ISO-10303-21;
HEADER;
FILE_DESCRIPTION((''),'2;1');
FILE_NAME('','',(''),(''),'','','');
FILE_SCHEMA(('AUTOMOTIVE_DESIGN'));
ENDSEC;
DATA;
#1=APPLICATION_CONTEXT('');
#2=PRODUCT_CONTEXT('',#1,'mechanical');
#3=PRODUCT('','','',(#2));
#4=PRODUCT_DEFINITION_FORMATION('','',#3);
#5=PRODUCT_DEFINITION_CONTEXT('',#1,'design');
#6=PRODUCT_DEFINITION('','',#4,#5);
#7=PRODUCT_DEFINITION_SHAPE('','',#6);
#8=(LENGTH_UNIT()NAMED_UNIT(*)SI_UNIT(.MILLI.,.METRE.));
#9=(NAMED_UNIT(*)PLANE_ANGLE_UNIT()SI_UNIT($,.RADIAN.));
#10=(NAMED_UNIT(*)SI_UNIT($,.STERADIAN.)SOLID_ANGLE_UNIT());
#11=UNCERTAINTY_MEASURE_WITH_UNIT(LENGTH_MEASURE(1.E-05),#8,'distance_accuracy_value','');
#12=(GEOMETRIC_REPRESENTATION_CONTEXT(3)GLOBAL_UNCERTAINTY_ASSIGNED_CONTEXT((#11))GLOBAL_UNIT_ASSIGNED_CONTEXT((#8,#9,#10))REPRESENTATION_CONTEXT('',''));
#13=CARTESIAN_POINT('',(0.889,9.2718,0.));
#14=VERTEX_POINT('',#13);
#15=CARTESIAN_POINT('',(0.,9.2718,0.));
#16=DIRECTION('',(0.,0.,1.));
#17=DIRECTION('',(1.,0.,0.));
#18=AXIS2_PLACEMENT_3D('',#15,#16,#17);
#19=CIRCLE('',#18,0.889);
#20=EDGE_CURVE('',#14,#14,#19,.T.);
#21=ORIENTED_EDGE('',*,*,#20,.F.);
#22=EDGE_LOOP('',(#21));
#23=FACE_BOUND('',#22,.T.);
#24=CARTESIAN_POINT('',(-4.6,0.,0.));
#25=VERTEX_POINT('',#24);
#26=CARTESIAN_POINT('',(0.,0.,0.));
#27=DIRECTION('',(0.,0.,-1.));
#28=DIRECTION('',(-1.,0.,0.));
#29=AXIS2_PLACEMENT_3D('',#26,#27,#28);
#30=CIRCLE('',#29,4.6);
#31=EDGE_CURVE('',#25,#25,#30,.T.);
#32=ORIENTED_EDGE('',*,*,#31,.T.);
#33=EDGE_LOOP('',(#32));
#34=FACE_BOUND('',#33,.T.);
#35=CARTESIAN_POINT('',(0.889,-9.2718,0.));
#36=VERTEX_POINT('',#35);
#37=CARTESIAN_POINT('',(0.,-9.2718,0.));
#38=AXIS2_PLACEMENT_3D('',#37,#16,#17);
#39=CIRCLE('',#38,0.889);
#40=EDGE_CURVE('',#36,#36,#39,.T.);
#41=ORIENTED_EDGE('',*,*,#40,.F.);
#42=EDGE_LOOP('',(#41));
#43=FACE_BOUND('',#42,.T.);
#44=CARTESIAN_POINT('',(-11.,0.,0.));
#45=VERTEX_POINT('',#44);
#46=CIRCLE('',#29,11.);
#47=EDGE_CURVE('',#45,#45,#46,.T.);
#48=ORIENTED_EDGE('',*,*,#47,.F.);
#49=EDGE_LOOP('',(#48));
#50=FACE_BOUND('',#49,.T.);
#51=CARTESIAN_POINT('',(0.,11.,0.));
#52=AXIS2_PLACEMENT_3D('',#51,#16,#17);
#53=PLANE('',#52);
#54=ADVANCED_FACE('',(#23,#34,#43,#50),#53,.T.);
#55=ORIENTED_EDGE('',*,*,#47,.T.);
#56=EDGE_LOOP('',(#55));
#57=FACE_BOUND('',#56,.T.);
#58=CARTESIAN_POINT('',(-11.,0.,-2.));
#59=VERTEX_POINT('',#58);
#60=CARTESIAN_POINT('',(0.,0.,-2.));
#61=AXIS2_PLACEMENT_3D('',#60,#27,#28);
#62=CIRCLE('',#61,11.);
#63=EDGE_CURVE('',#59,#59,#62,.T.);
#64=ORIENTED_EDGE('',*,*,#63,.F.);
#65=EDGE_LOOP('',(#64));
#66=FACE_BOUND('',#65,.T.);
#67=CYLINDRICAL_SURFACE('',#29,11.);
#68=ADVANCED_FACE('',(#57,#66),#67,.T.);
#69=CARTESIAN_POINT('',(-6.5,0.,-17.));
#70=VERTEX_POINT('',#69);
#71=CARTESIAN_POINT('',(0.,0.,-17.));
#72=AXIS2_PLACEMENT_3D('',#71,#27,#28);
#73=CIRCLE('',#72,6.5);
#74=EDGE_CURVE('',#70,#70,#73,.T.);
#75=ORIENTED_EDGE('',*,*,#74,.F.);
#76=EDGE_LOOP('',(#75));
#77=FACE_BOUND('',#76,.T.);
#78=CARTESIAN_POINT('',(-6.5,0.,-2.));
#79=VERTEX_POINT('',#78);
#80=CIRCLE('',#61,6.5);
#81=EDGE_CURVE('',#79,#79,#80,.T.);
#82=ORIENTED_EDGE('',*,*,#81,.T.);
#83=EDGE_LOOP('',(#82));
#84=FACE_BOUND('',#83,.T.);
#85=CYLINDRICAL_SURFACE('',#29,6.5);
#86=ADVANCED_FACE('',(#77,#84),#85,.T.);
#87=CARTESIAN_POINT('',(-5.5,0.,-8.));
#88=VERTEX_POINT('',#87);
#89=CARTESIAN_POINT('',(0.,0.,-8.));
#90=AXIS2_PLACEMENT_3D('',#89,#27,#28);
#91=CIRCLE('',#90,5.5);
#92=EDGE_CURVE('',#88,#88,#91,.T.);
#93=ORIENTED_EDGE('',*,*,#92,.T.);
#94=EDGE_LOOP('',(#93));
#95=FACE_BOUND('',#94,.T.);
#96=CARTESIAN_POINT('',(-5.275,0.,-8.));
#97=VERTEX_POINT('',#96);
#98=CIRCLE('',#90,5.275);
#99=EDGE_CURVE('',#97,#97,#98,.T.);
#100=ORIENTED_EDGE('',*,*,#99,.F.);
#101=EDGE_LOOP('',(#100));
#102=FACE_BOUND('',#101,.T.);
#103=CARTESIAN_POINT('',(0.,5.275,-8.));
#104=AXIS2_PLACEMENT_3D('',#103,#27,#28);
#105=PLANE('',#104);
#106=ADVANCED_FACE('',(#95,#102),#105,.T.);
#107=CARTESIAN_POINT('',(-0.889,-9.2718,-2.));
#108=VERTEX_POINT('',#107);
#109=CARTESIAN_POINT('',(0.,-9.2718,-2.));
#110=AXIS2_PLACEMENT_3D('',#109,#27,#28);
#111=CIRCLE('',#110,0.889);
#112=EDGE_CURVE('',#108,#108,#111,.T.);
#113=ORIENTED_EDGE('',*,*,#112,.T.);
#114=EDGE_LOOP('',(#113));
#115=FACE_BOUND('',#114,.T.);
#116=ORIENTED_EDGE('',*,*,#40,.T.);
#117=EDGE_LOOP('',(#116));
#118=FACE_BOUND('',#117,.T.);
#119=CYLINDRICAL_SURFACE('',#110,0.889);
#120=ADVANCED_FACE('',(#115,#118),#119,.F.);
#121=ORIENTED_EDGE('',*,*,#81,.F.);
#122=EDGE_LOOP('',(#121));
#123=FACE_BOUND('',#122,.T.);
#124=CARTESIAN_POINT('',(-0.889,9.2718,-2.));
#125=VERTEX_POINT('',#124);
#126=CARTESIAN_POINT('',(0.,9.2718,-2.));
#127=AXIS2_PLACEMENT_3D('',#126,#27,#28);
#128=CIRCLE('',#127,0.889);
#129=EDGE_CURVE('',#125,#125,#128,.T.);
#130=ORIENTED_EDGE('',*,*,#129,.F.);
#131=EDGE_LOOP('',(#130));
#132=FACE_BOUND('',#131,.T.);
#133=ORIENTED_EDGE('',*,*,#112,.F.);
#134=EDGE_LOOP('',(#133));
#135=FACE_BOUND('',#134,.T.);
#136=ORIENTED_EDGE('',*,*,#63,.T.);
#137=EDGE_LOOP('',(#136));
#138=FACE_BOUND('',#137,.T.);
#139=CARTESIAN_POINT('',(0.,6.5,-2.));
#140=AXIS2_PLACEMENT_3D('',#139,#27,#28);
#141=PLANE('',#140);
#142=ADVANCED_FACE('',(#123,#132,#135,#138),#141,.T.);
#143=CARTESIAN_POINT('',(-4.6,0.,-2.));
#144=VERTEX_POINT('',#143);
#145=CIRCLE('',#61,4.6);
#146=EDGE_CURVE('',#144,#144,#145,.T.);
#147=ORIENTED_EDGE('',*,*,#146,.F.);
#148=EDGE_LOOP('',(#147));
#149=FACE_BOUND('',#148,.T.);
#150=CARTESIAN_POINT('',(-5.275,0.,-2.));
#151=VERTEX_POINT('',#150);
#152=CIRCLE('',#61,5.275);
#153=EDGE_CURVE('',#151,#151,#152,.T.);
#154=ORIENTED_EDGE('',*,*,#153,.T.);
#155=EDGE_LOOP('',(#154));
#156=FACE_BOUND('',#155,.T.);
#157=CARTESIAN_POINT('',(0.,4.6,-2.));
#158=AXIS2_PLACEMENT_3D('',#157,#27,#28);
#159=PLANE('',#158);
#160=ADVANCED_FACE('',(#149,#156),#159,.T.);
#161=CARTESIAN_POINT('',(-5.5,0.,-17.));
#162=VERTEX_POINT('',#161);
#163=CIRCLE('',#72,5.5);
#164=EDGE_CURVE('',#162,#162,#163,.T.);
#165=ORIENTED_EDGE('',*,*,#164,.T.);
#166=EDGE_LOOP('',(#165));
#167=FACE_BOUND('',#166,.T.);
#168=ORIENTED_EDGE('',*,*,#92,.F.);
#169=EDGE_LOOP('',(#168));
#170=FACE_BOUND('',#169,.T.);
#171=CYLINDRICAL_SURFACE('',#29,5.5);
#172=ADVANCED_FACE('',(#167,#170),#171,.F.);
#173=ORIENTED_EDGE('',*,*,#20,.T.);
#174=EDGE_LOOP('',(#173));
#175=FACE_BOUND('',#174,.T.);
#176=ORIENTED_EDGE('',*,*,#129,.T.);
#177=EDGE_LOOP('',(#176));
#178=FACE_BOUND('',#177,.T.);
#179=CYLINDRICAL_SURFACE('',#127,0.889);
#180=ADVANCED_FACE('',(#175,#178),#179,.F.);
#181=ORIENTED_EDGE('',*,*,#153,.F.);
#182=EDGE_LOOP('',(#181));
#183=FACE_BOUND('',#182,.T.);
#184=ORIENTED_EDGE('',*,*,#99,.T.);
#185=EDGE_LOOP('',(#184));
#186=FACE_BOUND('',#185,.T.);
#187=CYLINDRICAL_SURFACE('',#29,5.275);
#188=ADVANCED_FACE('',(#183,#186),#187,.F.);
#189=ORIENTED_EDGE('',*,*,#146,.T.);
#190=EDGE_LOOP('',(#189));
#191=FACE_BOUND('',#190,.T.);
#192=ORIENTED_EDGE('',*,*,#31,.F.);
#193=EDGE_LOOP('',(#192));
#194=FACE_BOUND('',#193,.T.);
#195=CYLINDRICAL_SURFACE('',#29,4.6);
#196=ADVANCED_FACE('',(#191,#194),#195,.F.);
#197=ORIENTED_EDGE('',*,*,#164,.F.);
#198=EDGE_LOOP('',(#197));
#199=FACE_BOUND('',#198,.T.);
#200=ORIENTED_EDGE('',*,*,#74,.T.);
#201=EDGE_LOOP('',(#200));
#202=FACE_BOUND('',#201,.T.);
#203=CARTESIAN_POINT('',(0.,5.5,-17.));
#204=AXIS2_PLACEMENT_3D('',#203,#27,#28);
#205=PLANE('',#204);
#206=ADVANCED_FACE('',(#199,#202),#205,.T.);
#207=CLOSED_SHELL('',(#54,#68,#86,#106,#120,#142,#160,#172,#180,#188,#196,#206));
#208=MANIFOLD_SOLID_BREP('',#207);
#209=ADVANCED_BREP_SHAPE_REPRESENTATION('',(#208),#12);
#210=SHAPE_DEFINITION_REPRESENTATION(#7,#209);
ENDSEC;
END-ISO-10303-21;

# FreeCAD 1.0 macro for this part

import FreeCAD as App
import Part
import Sketcher
from FreeCAD import Vector
Q = App.Units.Quantity


def add_polygon(sketch, points):
    """Adds a closed chain of lines whose ends are joined by coincident constraints."""
    first, n = sketch.GeometryCount, len(points)
    for a, b in zip(points, points[1:] + points[:1]):
        sketch.addGeometry(Part.LineSegment(App.Vector(*a, 0), App.Vector(*b, 0)), False)
    for i in range(n):
        sketch.addConstraint(Sketcher.Constraint("Coincident", first + i, 2, first + (i + 1) % n, 1))

doc = App.newDocument("Part")
body = doc.addObject("PartDesign::Body", "Body")

sketch1 = body.newObject("Sketcher::SketchObject", "Sketch")
sketch1.AttachmentSupport = (doc.getObject("YZ_Plane"), [""])
sketch1.MapMode = "FlatFace"
add_polygon(sketch1, [(11, 0), (4.6, 0), (4.6, -2), (5.28, -2), (5.28, -8), (5.5, -8), (5.5, -17), (6.5, -17), (6.5, -2), (11, -2)])
sketch1.addConstraint([
    Sketcher.Constraint("Horizontal", 0),
    Sketcher.Constraint("Vertical", 1),
    Sketcher.Constraint("Horizontal", 2),
    Sketcher.Constraint("Vertical", 3),
    Sketcher.Constraint("Horizontal", 4),
    Sketcher.Constraint("Vertical", 5),
    Sketcher.Constraint("Horizontal", 6),
    Sketcher.Constraint("Vertical", 7),
    Sketcher.Constraint("Horizontal", 8),
    Sketcher.Constraint("Vertical", 9),
    Sketcher.Constraint("PointOnObject", 0, 2, -1),
    Sketcher.Constraint("Horizontal", 2, 2, 7, 2),
    Sketcher.Constraint("DistanceX", 6, 1, 6, 2, Q("1 mm")),
    Sketcher.Constraint("DistanceY", 1, 2, 1, 1, Q("2 mm")),
    Sketcher.Constraint("DistanceY", 3, 2, 3, 1, Q("6 mm")),
    Sketcher.Constraint("DistanceY", 5, 2, 5, 1, Q("9 mm")),
    Sketcher.Constraint("DistanceX", 0, 2, 0, 1, Q("6.4 mm")),
    Sketcher.Constraint("DistanceX", 8, 1, 8, 2, Q("4.5 mm")),
    Sketcher.Constraint("DistanceX", -1, 1, 8, 2, Q("11 mm")),
    Sketcher.Constraint("DistanceX", 2, 1, 2, 2, Q("0.675 mm")),
])
revolution = body.newObject("PartDesign::Revolution", "Revolution")
revolution.Profile = sketch1
revolution.ReferenceAxis = (sketch1, ["V_Axis"])
revolution.Angle = 360

sketch2 = body.newObject("Sketcher::SketchObject", "Sketch001")
sketch2.AttachmentSupport = (doc.getObject("XY_Plane"), [""])
sketch2.MapMode = "FlatFace"
sketch2.AttachmentOffset = App.Placement(Vector(0, 0, -2), App.Rotation())
sketch2.addGeometry([
    Part.Circle(Vector(0, 9.3, 0), Vector(0, 0, 1), 0.9),
    Part.Circle(Vector(0, -9.3, 0), Vector(0, 0, 1), 0.9),
], False)
sketch2.addConstraint([
    Sketcher.Constraint("Equal", 0, 1),
    Sketcher.Constraint("Symmetric", 0, 3, 1, 3, -1, 1),
    Sketcher.Constraint("PointOnObject", 0, 3, -2),
    Sketcher.Constraint("Diameter", 0, Q("1.778 mm")),
    Sketcher.Constraint("DistanceY", -1, 1, 0, 3, Q("9.2718 mm")),
])
doc.recompute()
hole = body.newObject("PartDesign::Hole", "Hole")
hole.Profile = sketch2
hole.ThreadType = "None"
hole.Diameter = 1.778
hole.DepthType = "Dimension"
hole.Depth = 19.05
hole.DrillPoint = "Angled"
hole.DrillPointAngle = 118
hole.Reversed = True

doc.recompute()
